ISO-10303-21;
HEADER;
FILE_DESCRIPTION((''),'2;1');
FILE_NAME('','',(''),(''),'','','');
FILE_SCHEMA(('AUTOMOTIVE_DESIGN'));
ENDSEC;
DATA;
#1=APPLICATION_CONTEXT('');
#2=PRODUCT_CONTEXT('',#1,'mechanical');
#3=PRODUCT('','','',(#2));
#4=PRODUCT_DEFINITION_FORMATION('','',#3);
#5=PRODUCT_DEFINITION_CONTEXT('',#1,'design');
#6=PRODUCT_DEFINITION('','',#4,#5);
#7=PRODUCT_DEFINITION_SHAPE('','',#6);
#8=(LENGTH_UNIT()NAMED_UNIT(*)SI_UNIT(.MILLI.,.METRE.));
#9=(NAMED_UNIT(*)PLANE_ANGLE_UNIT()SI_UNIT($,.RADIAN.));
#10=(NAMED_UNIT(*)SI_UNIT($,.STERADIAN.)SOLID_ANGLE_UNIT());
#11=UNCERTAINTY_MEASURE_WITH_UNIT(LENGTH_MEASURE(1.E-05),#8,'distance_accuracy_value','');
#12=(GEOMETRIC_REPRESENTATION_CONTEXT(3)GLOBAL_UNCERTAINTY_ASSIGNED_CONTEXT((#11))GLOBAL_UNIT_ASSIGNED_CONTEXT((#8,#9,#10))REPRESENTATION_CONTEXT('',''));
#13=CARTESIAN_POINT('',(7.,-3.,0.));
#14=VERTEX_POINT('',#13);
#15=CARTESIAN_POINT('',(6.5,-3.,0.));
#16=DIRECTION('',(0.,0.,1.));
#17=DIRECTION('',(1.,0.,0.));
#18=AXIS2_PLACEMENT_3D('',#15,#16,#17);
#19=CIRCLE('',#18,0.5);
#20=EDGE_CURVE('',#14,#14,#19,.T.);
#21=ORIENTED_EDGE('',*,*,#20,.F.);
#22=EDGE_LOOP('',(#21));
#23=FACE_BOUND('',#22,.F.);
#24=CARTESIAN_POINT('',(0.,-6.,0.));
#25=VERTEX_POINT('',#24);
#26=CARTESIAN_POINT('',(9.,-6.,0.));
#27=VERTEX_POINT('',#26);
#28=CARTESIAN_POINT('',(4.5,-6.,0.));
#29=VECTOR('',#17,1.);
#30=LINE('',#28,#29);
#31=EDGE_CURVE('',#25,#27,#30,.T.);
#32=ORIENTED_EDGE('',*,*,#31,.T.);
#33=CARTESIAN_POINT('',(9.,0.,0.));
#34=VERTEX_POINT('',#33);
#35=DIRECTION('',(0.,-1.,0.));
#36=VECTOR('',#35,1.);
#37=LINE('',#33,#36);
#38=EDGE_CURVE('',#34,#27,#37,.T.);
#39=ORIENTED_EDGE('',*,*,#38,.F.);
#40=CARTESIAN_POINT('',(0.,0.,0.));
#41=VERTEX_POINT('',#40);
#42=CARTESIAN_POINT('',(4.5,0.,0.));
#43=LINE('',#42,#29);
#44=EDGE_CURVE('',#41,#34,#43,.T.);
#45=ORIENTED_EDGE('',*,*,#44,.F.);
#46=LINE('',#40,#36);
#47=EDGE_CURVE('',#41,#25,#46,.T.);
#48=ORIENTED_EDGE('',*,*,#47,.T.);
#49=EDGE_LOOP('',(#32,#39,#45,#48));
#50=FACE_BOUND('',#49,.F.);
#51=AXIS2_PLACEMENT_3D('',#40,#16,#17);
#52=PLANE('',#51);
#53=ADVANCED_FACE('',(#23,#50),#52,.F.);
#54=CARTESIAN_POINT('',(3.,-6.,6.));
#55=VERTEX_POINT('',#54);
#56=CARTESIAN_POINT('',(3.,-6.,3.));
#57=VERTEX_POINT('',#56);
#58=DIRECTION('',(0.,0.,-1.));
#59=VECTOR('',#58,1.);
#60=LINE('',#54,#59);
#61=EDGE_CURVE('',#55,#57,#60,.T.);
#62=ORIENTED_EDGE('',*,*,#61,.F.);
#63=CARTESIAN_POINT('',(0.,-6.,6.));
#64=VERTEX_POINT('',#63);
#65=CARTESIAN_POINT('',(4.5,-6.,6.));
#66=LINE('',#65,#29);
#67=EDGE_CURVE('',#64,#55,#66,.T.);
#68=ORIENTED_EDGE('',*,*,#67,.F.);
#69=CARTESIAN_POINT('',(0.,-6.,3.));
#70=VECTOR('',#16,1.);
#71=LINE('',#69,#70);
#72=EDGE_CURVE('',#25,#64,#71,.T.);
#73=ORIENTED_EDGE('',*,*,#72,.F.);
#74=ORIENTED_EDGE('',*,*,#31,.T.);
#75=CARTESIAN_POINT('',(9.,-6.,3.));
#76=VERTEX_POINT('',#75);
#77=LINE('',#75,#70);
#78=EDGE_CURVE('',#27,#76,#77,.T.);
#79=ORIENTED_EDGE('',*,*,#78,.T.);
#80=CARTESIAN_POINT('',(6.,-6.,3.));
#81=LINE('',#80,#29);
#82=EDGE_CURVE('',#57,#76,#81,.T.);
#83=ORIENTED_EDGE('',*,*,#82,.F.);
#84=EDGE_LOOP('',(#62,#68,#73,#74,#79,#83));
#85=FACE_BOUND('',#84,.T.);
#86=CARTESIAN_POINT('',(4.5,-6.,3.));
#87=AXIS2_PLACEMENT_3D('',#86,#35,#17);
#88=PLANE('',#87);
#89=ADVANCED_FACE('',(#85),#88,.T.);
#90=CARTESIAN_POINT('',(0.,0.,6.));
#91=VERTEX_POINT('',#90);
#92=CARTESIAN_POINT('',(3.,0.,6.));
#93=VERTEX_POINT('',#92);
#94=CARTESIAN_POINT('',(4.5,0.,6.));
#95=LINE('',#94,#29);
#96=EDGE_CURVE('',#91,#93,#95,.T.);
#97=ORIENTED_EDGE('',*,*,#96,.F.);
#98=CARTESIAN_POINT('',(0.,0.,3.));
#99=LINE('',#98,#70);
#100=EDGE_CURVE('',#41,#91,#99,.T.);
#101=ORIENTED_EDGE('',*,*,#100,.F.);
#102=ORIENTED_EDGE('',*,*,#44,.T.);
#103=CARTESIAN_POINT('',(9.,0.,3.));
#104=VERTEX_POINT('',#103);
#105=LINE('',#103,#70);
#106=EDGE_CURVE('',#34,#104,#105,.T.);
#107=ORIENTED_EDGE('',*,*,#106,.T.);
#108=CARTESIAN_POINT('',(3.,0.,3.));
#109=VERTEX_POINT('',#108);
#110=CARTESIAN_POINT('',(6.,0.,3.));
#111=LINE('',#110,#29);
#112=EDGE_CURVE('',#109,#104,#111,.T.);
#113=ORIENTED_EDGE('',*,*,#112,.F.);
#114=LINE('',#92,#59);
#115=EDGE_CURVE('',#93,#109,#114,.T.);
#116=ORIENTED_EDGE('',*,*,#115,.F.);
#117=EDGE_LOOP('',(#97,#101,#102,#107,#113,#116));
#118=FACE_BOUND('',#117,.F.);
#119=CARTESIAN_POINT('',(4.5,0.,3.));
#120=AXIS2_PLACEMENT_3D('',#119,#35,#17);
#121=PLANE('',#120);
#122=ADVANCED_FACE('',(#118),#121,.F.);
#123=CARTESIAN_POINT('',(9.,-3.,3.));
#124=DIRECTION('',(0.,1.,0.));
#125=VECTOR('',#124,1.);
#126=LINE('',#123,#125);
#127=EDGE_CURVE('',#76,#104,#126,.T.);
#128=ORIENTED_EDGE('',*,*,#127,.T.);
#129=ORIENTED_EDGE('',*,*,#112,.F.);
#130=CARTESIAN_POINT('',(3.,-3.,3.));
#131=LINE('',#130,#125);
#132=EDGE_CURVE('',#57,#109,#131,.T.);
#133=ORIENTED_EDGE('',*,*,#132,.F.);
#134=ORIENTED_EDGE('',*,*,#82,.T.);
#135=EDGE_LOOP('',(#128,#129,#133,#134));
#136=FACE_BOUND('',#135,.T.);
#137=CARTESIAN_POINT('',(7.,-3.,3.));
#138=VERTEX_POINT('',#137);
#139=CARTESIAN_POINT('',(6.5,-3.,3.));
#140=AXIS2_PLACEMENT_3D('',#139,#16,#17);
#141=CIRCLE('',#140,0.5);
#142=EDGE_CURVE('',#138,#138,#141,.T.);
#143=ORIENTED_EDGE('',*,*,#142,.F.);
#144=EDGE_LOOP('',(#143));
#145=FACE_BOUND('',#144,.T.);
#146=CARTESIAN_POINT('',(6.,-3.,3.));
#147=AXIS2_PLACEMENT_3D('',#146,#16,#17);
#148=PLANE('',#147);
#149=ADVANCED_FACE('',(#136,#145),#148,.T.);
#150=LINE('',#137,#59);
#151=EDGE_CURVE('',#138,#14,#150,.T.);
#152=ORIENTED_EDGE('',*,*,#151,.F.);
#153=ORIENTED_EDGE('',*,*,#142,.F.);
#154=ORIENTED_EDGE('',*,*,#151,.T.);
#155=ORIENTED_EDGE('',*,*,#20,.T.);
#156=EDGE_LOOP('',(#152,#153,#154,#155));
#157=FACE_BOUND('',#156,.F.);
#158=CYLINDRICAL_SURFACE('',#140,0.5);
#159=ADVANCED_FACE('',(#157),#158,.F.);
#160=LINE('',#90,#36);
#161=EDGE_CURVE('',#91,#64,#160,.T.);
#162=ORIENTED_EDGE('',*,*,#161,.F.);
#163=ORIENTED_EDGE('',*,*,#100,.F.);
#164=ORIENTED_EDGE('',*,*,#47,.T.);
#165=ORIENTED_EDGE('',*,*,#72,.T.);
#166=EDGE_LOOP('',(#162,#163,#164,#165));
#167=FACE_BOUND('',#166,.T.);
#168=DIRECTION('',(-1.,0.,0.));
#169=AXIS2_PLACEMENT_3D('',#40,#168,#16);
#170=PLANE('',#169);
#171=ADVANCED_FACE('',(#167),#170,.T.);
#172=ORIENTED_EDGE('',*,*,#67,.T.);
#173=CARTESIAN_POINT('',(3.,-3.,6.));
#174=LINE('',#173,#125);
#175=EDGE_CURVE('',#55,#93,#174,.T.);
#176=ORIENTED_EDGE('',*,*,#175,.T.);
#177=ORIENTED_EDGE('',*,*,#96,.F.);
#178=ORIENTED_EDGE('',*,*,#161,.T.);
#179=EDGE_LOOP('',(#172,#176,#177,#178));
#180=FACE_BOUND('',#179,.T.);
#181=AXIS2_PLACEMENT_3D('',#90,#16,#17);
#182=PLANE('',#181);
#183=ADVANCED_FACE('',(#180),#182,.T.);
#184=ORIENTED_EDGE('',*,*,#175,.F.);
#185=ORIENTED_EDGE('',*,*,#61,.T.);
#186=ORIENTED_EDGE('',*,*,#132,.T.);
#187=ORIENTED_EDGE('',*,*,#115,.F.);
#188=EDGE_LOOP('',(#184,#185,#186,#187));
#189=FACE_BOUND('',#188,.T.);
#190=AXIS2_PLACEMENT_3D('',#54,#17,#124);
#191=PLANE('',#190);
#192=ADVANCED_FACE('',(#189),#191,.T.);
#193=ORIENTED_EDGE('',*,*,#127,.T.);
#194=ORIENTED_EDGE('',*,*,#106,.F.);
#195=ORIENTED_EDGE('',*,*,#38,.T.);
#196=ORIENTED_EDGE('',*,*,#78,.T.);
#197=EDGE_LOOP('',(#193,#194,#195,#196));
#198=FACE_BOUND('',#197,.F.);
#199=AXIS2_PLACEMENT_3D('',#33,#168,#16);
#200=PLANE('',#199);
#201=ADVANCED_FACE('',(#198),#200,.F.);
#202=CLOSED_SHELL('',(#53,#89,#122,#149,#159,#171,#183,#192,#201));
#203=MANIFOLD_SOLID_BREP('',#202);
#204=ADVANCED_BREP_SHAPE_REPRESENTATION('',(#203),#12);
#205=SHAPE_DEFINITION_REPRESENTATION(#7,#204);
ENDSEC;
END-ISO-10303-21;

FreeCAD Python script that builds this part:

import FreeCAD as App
import Part
import Sketcher
Q = App.Units.Quantity

doc = App.newDocument("Part")
params = doc.addObject("Spreadsheet::Sheet", "Params")
for row, (alias, value) in enumerate([
    ("sketch1_width", "9 mm"),
    ("sketch1_height", "6 mm"),
    ("pad1_length", "6 mm"),
    ("sketch2_width", "6 mm"),
    ("pocket1_length", "3 mm"),
    ("sketch3_diameter", "1 mm"),
    ("pocket2_length", "25 mm"),
], start=1):
    params.set(f"A{row}", alias)
    params.set(f"B{row}", "=" + value)
    params.setAlias(f"B{row}", alias)

body = doc.addObject("PartDesign::Body", "Body")

# Sketch on XZ plane
sketch1 = doc.addObject("Sketcher::SketchObject", "Sketch")
body.addObject(sketch1)
sketch1.AttachmentSupport = (doc.XZ_Plane, [""])
sketch1.MapMode = "FlatFace"
sketch1.addGeometry([
    Part.LineSegment(App.Vector(0, 6, 0), App.Vector(0, 0, 0)),
    Part.LineSegment(App.Vector(0, 0, 0), App.Vector(9, 0, 0)),
    Part.LineSegment(App.Vector(9, 0, 0), App.Vector(9, 6, 0)),
    Part.LineSegment(App.Vector(9, 6, 0), App.Vector(0, 6, 0)),
], False)
sketch1.addConstraint([
    Sketcher.Constraint("Coincident", 0, 2, 1, 1),
    Sketcher.Constraint("Coincident", 1, 2, 2, 1),
    Sketcher.Constraint("Coincident", 2, 2, 3, 1),
    Sketcher.Constraint("Coincident", 3, 2, 0, 1),
    Sketcher.Constraint("Vertical", 0),
    Sketcher.Constraint("Horizontal", 1),
    Sketcher.Constraint("Vertical", 2),
    Sketcher.Constraint("Horizontal", 3),
    Sketcher.Constraint("Coincident", 0, 2, -1, 1),
    Sketcher.Constraint("DistanceX", 1, 1, 1, 2, Q("9 mm")),
    Sketcher.Constraint("DistanceY", 0, 2, 0, 1, Q("6 mm")),
])
sketch1.setExpression("Constraints[9]", "Params.sketch1_width")
sketch1.setExpression("Constraints[10]", "Params.sketch1_height")
pad1 = doc.addObject("PartDesign::Pad", "Pad")
body.addObject(pad1)
pad1.Profile = sketch1
pad1.setExpression("Length", "Params.pad1_length")

# Sketch on XY plane
sketch2 = doc.addObject("Sketcher::SketchObject", "Sketch001")
body.addObject(sketch2)
sketch2.AttachmentSupport = (doc.XY_Plane, [""])
sketch2.MapMode = "FlatFace"
sketch2.AttachmentOffset = App.Placement(App.Vector(0, 0, 6), App.Rotation())
sketch2.addGeometry([
    Part.LineSegment(App.Vector(3, 0, 0), App.Vector(3, -6, 0)),
    Part.LineSegment(App.Vector(3, -6, 0), App.Vector(9, -6, 0)),
    Part.LineSegment(App.Vector(9, -6, 0), App.Vector(9, 0, 0)),
    Part.LineSegment(App.Vector(9, 0, 0), App.Vector(3, 0, 0)),
], False)
sketch2.addConstraint([
    Sketcher.Constraint("Coincident", 0, 2, 1, 1),
    Sketcher.Constraint("Coincident", 1, 2, 2, 1),
    Sketcher.Constraint("Coincident", 2, 2, 3, 1),
    Sketcher.Constraint("Coincident", 3, 2, 0, 1),
    Sketcher.Constraint("Vertical", 0),
    Sketcher.Constraint("Horizontal", 1),
    Sketcher.Constraint("Vertical", 2),
    Sketcher.Constraint("Horizontal", 3),
    Sketcher.Constraint("PointOnObject", 2, 2, -1),
    Sketcher.Constraint("Equal", 3, 0),
    Sketcher.Constraint("DistanceX", 1, 1, 1, 2, Q("6 mm")),
    Sketcher.Constraint("DistanceX", -1, 1, 0, 2, Q("3 mm")),
])
sketch2.setExpression("Constraints[10]", "Params.sketch2_width")
pocket1 = doc.addObject("PartDesign::Pocket", "Pocket")
body.addObject(pocket1)
pocket1.Profile = sketch2
pocket1.setExpression("Length", "Params.pocket1_length")

# Sketch on XY plane
sketch3 = doc.addObject("Sketcher::SketchObject", "Sketch002")
body.addObject(sketch3)
sketch3.AttachmentSupport = (doc.XY_Plane, [""])
sketch3.MapMode = "FlatFace"
sketch3.AttachmentOffset = App.Placement(App.Vector(0, 0, 3), App.Rotation())
sketch3.addGeometry(Part.Circle(App.Vector(6.5, -3, 0), App.Vector(0, 0, 1), 0.5), False)
sketch3.addConstraint([
    Sketcher.Constraint("Diameter", 0, Q("1 mm")),
    Sketcher.Constraint("DistanceY", 0, 3, -1, 1, Q("3 mm")),
    Sketcher.Constraint("DistanceX", -1, 1, 0, 3, Q("6.5 mm")),
])
sketch3.setExpression("Constraints[0]", "Params.sketch3_diameter")
pocket2 = doc.addObject("PartDesign::Pocket", "Pocket001")
body.addObject(pocket2)
pocket2.Profile = sketch3
pocket2.setExpression("Length", "Params.pocket2_length")

doc.recompute()
